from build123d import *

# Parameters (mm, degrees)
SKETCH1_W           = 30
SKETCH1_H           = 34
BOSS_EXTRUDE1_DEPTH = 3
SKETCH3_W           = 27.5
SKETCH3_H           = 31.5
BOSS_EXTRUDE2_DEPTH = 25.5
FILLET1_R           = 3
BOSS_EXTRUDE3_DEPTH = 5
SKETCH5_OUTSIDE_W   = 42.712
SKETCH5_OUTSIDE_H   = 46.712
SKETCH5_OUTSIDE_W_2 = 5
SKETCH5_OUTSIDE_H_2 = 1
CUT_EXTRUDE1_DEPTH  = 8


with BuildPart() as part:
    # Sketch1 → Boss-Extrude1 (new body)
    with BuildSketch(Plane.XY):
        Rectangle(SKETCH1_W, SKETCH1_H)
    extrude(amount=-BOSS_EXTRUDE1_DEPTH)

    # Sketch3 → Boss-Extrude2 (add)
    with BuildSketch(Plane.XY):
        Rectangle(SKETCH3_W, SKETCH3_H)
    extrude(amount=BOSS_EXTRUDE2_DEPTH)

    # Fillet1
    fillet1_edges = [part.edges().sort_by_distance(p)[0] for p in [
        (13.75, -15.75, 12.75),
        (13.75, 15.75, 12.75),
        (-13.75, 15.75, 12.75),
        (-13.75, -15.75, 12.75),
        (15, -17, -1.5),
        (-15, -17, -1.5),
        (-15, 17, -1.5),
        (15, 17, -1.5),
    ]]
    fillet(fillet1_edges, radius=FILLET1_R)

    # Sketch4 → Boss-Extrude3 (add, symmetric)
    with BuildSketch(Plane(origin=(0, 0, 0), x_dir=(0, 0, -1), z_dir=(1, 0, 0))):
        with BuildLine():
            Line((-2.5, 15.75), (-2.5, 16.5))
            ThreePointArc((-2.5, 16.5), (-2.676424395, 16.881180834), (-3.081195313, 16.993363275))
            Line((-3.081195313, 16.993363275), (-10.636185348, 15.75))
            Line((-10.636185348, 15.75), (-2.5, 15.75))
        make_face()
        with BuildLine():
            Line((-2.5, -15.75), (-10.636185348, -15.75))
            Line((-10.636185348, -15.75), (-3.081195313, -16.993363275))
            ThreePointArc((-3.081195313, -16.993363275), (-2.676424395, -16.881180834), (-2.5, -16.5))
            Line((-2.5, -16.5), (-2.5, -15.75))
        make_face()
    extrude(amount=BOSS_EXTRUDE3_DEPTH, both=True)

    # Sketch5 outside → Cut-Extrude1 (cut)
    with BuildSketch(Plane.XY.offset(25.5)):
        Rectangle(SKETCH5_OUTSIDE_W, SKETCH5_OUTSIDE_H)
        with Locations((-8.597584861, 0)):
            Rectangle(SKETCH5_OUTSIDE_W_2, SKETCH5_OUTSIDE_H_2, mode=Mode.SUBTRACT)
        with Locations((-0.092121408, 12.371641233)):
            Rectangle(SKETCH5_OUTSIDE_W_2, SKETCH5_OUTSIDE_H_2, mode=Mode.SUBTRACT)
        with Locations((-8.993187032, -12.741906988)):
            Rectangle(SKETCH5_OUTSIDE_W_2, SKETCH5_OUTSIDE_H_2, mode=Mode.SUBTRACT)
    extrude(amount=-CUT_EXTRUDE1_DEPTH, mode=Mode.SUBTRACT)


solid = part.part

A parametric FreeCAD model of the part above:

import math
import FreeCAD as App
import Part
import Sketcher
Q = App.Units.Quantity


def edges_at(feature, points):
    """Names of the edges that pass closest to the given points."""
    edges = feature.Shape.Edges
    near = lambda p: min(range(len(edges)), key=lambda i: edges[i].distToShape(Part.Vertex(*p))[0])
    return sorted({f"Edge{near(p) + 1}" for p in points})

doc = App.newDocument("Part")
body = doc.addObject("PartDesign::Body", "Body")

# Sketch on XY plane
sketch1 = body.newObject("Sketcher::SketchObject", "Sketch")
sketch1.AttachmentSupport = (doc.getObject("XY_Plane"), [""])
sketch1.MapMode = "FlatFace"
sketch1.addGeometry(Part.LineSegment(App.Vector(-15, 17, 0), App.Vector(-15, -17, 0)), False)
sketch1.addGeometry(Part.LineSegment(App.Vector(-15, -17, 0), App.Vector(15, -17, 0)), False)
sketch1.addGeometry(Part.LineSegment(App.Vector(15, -17, 0), App.Vector(15, 17, 0)), False)
sketch1.addGeometry(Part.LineSegment(App.Vector(15, 17, 0), App.Vector(-15, 17, 0)), False)
sketch1.addConstraint(Sketcher.Constraint("Coincident", 0, 2, 1, 1))
sketch1.addConstraint(Sketcher.Constraint("Coincident", 1, 2, 2, 1))
sketch1.addConstraint(Sketcher.Constraint("Coincident", 2, 2, 3, 1))
sketch1.addConstraint(Sketcher.Constraint("Coincident", 3, 2, 0, 1))
sketch1.addConstraint(Sketcher.Constraint("Vertical", 0))
sketch1.addConstraint(Sketcher.Constraint("Horizontal", 1))
sketch1.addConstraint(Sketcher.Constraint("Vertical", 2))
sketch1.addConstraint(Sketcher.Constraint("Horizontal", 3))
sketch1.addConstraint(Sketcher.Constraint("Symmetric", 0, 2, 2, 2, -1, 1))
sketch1.addConstraint(Sketcher.Constraint("DistanceX", 1, 1, 1, 2, Q("30 mm")))
sketch1.addConstraint(Sketcher.Constraint("DistanceY", 0, 2, 0, 1, Q("34 mm")))
pad1 = body.newObject("PartDesign::Pad", "Pad")
pad1.Profile = sketch1
pad1.Length = 3
pad1.Reversed = True

# Sketch on XY plane
sketch2 = body.newObject("Sketcher::SketchObject", "Sketch001")
sketch2.AttachmentSupport = (doc.getObject("XY_Plane"), [""])
sketch2.MapMode = "FlatFace"
sketch2.addGeometry(Part.LineSegment(App.Vector(-13.75, 15.75, 0), App.Vector(-13.75, -15.75, 0)), False)
sketch2.addGeometry(Part.LineSegment(App.Vector(-13.75, -15.75, 0), App.Vector(13.75, -15.75, 0)), False)
sketch2.addGeometry(Part.LineSegment(App.Vector(13.75, -15.75, 0), App.Vector(13.75, 15.75, 0)), False)
sketch2.addGeometry(Part.LineSegment(App.Vector(13.75, 15.75, 0), App.Vector(-13.75, 15.75, 0)), False)
sketch2.addConstraint(Sketcher.Constraint("Coincident", 0, 2, 1, 1))
sketch2.addConstraint(Sketcher.Constraint("Coincident", 1, 2, 2, 1))
sketch2.addConstraint(Sketcher.Constraint("Coincident", 2, 2, 3, 1))
sketch2.addConstraint(Sketcher.Constraint("Coincident", 3, 2, 0, 1))
sketch2.addConstraint(Sketcher.Constraint("Vertical", 0))
sketch2.addConstraint(Sketcher.Constraint("Horizontal", 1))
sketch2.addConstraint(Sketcher.Constraint("Vertical", 2))
sketch2.addConstraint(Sketcher.Constraint("Horizontal", 3))
sketch2.addConstraint(Sketcher.Constraint("Symmetric", 0, 2, 2, 2, -1, 1))
sketch2.addConstraint(Sketcher.Constraint("DistanceX", 1, 1, 1, 2, Q("27.5 mm")))
sketch2.addConstraint(Sketcher.Constraint("DistanceY", 0, 2, 0, 1, Q("31.5 mm")))
pad2 = body.newObject("PartDesign::Pad", "Pad001")
pad2.Profile = sketch2
pad2.Length = 25.5
doc.recompute()

fillet = body.newObject("PartDesign::Fillet", "Fillet")
fillet.Base = (pad2, edges_at(pad2, [
    (13.75, -15.75, 12.75),
    (13.75, 15.75, 12.75),
    (-13.75, 15.75, 12.75),
    (-13.75, -15.75, 12.75),
    (15, -17, -1.5),
    (-15, -17, -1.5),
    (-15, 17, -1.5),
    (15, 17, -1.5),
]))
fillet.Radius = 3

# Sketch on YZ plane
sketch3 = body.newObject("Sketcher::SketchObject", "Sketch002")
sketch3.AttachmentSupport = (doc.getObject("YZ_Plane"), [""])
sketch3.MapMode = "FlatFace"
sketch3.addGeometry(Part.LineSegment(App.Vector(15.75, 2.5, 0), App.Vector(16.5, 2.5, 0)), False)
sketch3.addGeometry(Part.ArcOfCircle(Part.Circle(App.Vector(16.5, 3, 0), App.Vector(0, 0, 1), 0.5), math.radians(-90), math.radians(9.345684)), False)
sketch3.addGeometry(Part.LineSegment(App.Vector(16.993363, 3.081195, 0), App.Vector(15.75, 10.636185, 0)), False)
sketch3.addGeometry(Part.LineSegment(App.Vector(15.75, 10.636185, 0), App.Vector(15.75, 2.5, 0)), False)
sketch3.addGeometry(Part.LineSegment(App.Vector(-15.75, 2.5, 0), App.Vector(-15.75, 10.636185, 0)), False)
sketch3.addGeometry(Part.LineSegment(App.Vector(-15.75, 10.636185, 0), App.Vector(-16.993363, 3.081195, 0)), False)
sketch3.addGeometry(Part.ArcOfCircle(Part.Circle(App.Vector(-16.5, 3, 0), App.Vector(0, 0, 1), 0.5), math.radians(170.654316), math.radians(270)), False)
sketch3.addGeometry(Part.LineSegment(App.Vector(-16.5, 2.5, 0), App.Vector(-15.75, 2.5, 0)), False)
sketch3.addConstraint(Sketcher.Constraint("Tangent", 0, 2, 1, 1))
sketch3.addConstraint(Sketcher.Constraint("Tangent", 1, 2, 2, 1))
sketch3.addConstraint(Sketcher.Constraint("Coincident", 2, 2, 3, 1))
sketch3.addConstraint(Sketcher.Constraint("Coincident", 3, 2, 0, 1))
sketch3.addConstraint(Sketcher.Constraint("Coincident", 4, 2, 5, 1))
sketch3.addConstraint(Sketcher.Constraint("Tangent", 5, 2, 6, 1))
sketch3.addConstraint(Sketcher.Constraint("Tangent", 6, 2, 7, 1))
sketch3.addConstraint(Sketcher.Constraint("Coincident", 7, 2, 4, 1))
sketch3.addConstraint(Sketcher.Constraint("Horizontal", 0))
sketch3.addConstraint(Sketcher.Constraint("Vertical", 3))
sketch3.addConstraint(Sketcher.Constraint("Vertical", 4))
sketch3.addConstraint(Sketcher.Constraint("Horizontal", 7))
sketch3.addConstraint(Sketcher.Constraint("Equal", 1, 6))
sketch3.addConstraint(Sketcher.Constraint("Symmetric", 1, 3, 6, 3, -2))
sketch3.addConstraint(Sketcher.Constraint("Symmetric", 2, 2, 4, 2, -2))
sketch3.addConstraint(Sketcher.Constraint("Radius", 1, Q("0.5 mm")))
sketch3.addConstraint(Sketcher.Constraint("DistanceY", -1, 1, 1, 3, Q("3 mm")))
sketch3.addConstraint(Sketcher.Constraint("DistanceX", 6, 3, 1, 3, Q("33 mm")))
sketch3.addConstraint(Sketcher.Constraint("DistanceX", 0, 1, 0, 2, Q("0.75 mm")))
sketch3.addConstraint(Sketcher.Constraint("Distance", 2, Q("7.65662 mm")))
pad3 = body.newObject("PartDesign::Pad", "Pad002")
pad3.Profile = sketch3
pad3.Length = 10
pad3.Midplane = True

# Sketch on XY plane
sketch4 = body.newObject("Sketcher::SketchObject", "Sketch003")
sketch4.AttachmentSupport = (doc.getObject("XY_Plane"), [""])
sketch4.MapMode = "FlatFace"
sketch4.AttachmentOffset = App.Placement(App.Vector(0, 0, 25.5), App.Rotation())
sketch4.addGeometry(Part.LineSegment(App.Vector(-21.356, 23.356, 0), App.Vector(-21.356, -23.356, 0)), False)
sketch4.addGeometry(Part.LineSegment(App.Vector(-21.356, -23.356, 0), App.Vector(21.356, -23.356, 0)), False)
sketch4.addGeometry(Part.LineSegment(App.Vector(21.356, -23.356, 0), App.Vector(21.356, 23.356, 0)), False)
sketch4.addGeometry(Part.LineSegment(App.Vector(21.356, 23.356, 0), App.Vector(-21.356, 23.356, 0)), False)
sketch4.addGeometry(Part.LineSegment(App.Vector(-6.493187, -13.241907, 0), App.Vector(-11.493187, -13.241907, 0)), False)
sketch4.addGeometry(Part.LineSegment(App.Vector(-11.493187, -13.241907, 0), App.Vector(-11.493187, -12.241907, 0)), False)
sketch4.addGeometry(Part.LineSegment(App.Vector(-11.493187, -12.241907, 0), App.Vector(-6.493187, -12.241907, 0)), False)
sketch4.addGeometry(Part.LineSegment(App.Vector(-6.493187, -12.241907, 0), App.Vector(-6.493187, -13.241907, 0)), False)
sketch4.addGeometry(Part.LineSegment(App.Vector(-6.097585, -0.5, 0), App.Vector(-11.097585, -0.5, 0)), False)
sketch4.addGeometry(Part.LineSegment(App.Vector(-11.097585, -0.5, 0), App.Vector(-11.097585, 0.5, 0)), False)
sketch4.addGeometry(Part.LineSegment(App.Vector(-11.097585, 0.5, 0), App.Vector(-6.097585, 0.5, 0)), False)
sketch4.addGeometry(Part.LineSegment(App.Vector(-6.097585, 0.5, 0), App.Vector(-6.097585, -0.5, 0)), False)
sketch4.addGeometry(Part.LineSegment(App.Vector(2.407879, 11.871641, 0), App.Vector(-2.592121, 11.871641, 0)), False)
sketch4.addGeometry(Part.LineSegment(App.Vector(-2.592121, 11.871641, 0), App.Vector(-2.592121, 12.871641, 0)), False)
sketch4.addGeometry(Part.LineSegment(App.Vector(-2.592121, 12.871641, 0), App.Vector(2.407879, 12.871641, 0)), False)
sketch4.addGeometry(Part.LineSegment(App.Vector(2.407879, 12.871641, 0), App.Vector(2.407879, 11.871641, 0)), False)
sketch4.addConstraint(Sketcher.Constraint("Coincident", 0, 2, 1, 1))
sketch4.addConstraint(Sketcher.Constraint("Coincident", 1, 2, 2, 1))
sketch4.addConstraint(Sketcher.Constraint("Coincident", 2, 2, 3, 1))
sketch4.addConstraint(Sketcher.Constraint("Coincident", 3, 2, 0, 1))
sketch4.addConstraint(Sketcher.Constraint("Coincident", 4, 2, 5, 1))
sketch4.addConstraint(Sketcher.Constraint("Coincident", 5, 2, 6, 1))
sketch4.addConstraint(Sketcher.Constraint("Coincident", 6, 2, 7, 1))
sketch4.addConstraint(Sketcher.Constraint("Coincident", 7, 2, 4, 1))
sketch4.addConstraint(Sketcher.Constraint("Coincident", 8, 2, 9, 1))
sketch4.addConstraint(Sketcher.Constraint("Coincident", 9, 2, 10, 1))
sketch4.addConstraint(Sketcher.Constraint("Coincident", 10, 2, 11, 1))
sketch4.addConstraint(Sketcher.Constraint("Coincident", 11, 2, 8, 1))
sketch4.addConstraint(Sketcher.Constraint("Coincident", 12, 2, 13, 1))
sketch4.addConstraint(Sketcher.Constraint("Coincident", 13, 2, 14, 1))
sketch4.addConstraint(Sketcher.Constraint("Coincident", 14, 2, 15, 1))
sketch4.addConstraint(Sketcher.Constraint("Coincident", 15, 2, 12, 1))
sketch4.addConstraint(Sketcher.Constraint("Vertical", 0))
sketch4.addConstraint(Sketcher.Constraint("Horizontal", 1))
sketch4.addConstraint(Sketcher.Constraint("Vertical", 2))
sketch4.addConstraint(Sketcher.Constraint("Horizontal", 3))
sketch4.addConstraint(Sketcher.Constraint("Horizontal", 4))
sketch4.addConstraint(Sketcher.Constraint("Vertical", 5))
sketch4.addConstraint(Sketcher.Constraint("Horizontal", 6))
sketch4.addConstraint(Sketcher.Constraint("Vertical", 7))
sketch4.addConstraint(Sketcher.Constraint("Horizontal", 8))
sketch4.addConstraint(Sketcher.Constraint("Vertical", 9))
sketch4.addConstraint(Sketcher.Constraint("Horizontal", 10))
sketch4.addConstraint(Sketcher.Constraint("Vertical", 11))
sketch4.addConstraint(Sketcher.Constraint("Horizontal", 12))
sketch4.addConstraint(Sketcher.Constraint("Vertical", 13))
sketch4.addConstraint(Sketcher.Constraint("Horizontal", 14))
sketch4.addConstraint(Sketcher.Constraint("Vertical", 15))
sketch4.addConstraint(Sketcher.Constraint("Symmetric", 0, 2, 2, 2, -1, 1))
sketch4.addConstraint(Sketcher.Constraint("Equal", 6, 8))
sketch4.addConstraint(Sketcher.Constraint("Equal", 10, 12))
sketch4.addConstraint(Sketcher.Constraint("Equal", 7, 9))
sketch4.addConstraint(Sketcher.Constraint("Equal", 11, 13))
sketch4.addConstraint(Sketcher.Constraint("DistanceX", 4, 2, 4, 1, Q("5 mm")))
sketch4.addConstraint(Sketcher.Constraint("DistanceY", 5, 1, 5, 2, Q("1 mm")))
sketch4.addConstraint(Sketcher.Constraint("DistanceY", 8, 2, -1, 1, Q("0.5 mm")))
sketch4.addConstraint(Sketcher.Constraint("DistanceX", 1, 1, 1, 2, Q("42.712 mm")))
sketch4.addConstraint(Sketcher.Constraint("DistanceY", 0, 2, 0, 1, Q("46.712 mm")))
sketch4.addConstraint(Sketcher.Constraint("DistanceX", 12, 2, -1, 1, Q("2.592121 mm")))
sketch4.addConstraint(Sketcher.Constraint("DistanceY", -1, 1, 12, 2, Q("11.871641 mm")))
sketch4.addConstraint(Sketcher.Constraint("DistanceX", 4, 2, -1, 1, Q("11.493187 mm")))
sketch4.addConstraint(Sketcher.Constraint("DistanceY", 4, 2, -1, 1, Q("13.241907 mm")))
sketch4.addConstraint(Sketcher.Constraint("DistanceX", 8, 2, -1, 1, Q("11.097585 mm")))
pocket1 = body.newObject("PartDesign::Pocket", "Pocket")
pocket1.Profile = sketch4
pocket1.Length = 8

doc.recompute()
